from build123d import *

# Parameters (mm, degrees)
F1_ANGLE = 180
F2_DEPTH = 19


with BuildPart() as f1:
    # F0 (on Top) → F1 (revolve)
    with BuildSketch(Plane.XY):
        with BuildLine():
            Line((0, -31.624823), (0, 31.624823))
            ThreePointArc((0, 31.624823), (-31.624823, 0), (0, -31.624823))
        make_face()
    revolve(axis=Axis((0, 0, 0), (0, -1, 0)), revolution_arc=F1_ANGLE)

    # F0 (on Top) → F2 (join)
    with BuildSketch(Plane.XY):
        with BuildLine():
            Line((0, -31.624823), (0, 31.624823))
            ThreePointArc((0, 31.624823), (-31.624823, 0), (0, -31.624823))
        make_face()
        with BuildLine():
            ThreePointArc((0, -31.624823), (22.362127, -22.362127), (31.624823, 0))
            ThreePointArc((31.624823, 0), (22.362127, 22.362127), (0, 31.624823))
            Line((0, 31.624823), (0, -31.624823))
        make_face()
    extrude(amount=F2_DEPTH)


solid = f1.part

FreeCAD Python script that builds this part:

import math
import FreeCAD as App
import Part
import Sketcher
from FreeCAD import Vector
Q = App.Units.Quantity

doc = App.newDocument("Part")
body = doc.addObject("PartDesign::Body", "Body")

sketch1 = doc.addObject("Sketcher::SketchObject", "Sketch")
body.addObject(sketch1)
sketch1.AttachmentSupport = (doc.XY_Plane, [""])
sketch1.MapMode = "FlatFace"
sketch1.addGeometry([
    Part.LineSegment(Vector(0, -32, 0), Vector(0, 32, 0)),
    Part.ArcOfCircle(Part.Circle(Vector(0, 0, 0), Vector(0, 0, 1), 32), math.radians(90), math.radians(270)),
], False)
sketch1.addConstraint([
    Sketcher.Constraint("Coincident", 0, 1, 1, 2),
    Sketcher.Constraint("Coincident", 1, 1, 0, 2),
    Sketcher.Constraint("Vertical", 0),
    Sketcher.Constraint("Coincident", 1, 3, -1, 1),
    Sketcher.Constraint("PointOnObject", 0, 1, -2),
    Sketcher.Constraint("Radius", 1, Q("31.624823 mm")),
])
revolution = doc.addObject("PartDesign::Revolution", "Revolution")
body.addObject(revolution)
revolution.Profile = sketch1
revolution.ReferenceAxis = (sketch1, ["V_Axis"])
revolution.Angle = 180
revolution.Reversed = True

sketch2 = doc.addObject("Sketcher::SketchObject", "Sketch001")
body.addObject(sketch2)
sketch2.AttachmentSupport = (doc.XY_Plane, [""])
sketch2.MapMode = "FlatFace"
sketch2.addGeometry([
    Part.ArcOfCircle(Part.Circle(Vector(0, 0, 0), Vector(0, 0, 1), 32), math.radians(90), math.radians(270)),
    Part.ArcOfCircle(Part.Circle(Vector(0, 0, 0), Vector(0, 0, 1), 32), math.radians(-90), math.radians(0)),
    Part.ArcOfCircle(Part.Circle(Vector(0, 0, 0), Vector(0, 0, 1), 32), math.radians(0), math.radians(90)),
], False)
sketch2.addConstraint([
    Sketcher.Constraint("Tangent", 0, 2, 1, 1),
    Sketcher.Constraint("Tangent", 1, 2, 2, 1),
    Sketcher.Constraint("Tangent", 2, 2, 0, 1),
    Sketcher.Constraint("Coincident", 0, 3, -1, 1),
    Sketcher.Constraint("PointOnObject", 0, 2, -2),
    Sketcher.Constraint("PointOnObject", 1, 2, -1),
    Sketcher.Constraint("PointOnObject", 2, 2, -2),
    Sketcher.Constraint("Radius", 0, Q("31.624823 mm")),
])
pad1 = doc.addObject("PartDesign::Pad", "Pad")
body.addObject(pad1)
pad1.Profile = sketch2
pad1.Length = 19

doc.recompute()
